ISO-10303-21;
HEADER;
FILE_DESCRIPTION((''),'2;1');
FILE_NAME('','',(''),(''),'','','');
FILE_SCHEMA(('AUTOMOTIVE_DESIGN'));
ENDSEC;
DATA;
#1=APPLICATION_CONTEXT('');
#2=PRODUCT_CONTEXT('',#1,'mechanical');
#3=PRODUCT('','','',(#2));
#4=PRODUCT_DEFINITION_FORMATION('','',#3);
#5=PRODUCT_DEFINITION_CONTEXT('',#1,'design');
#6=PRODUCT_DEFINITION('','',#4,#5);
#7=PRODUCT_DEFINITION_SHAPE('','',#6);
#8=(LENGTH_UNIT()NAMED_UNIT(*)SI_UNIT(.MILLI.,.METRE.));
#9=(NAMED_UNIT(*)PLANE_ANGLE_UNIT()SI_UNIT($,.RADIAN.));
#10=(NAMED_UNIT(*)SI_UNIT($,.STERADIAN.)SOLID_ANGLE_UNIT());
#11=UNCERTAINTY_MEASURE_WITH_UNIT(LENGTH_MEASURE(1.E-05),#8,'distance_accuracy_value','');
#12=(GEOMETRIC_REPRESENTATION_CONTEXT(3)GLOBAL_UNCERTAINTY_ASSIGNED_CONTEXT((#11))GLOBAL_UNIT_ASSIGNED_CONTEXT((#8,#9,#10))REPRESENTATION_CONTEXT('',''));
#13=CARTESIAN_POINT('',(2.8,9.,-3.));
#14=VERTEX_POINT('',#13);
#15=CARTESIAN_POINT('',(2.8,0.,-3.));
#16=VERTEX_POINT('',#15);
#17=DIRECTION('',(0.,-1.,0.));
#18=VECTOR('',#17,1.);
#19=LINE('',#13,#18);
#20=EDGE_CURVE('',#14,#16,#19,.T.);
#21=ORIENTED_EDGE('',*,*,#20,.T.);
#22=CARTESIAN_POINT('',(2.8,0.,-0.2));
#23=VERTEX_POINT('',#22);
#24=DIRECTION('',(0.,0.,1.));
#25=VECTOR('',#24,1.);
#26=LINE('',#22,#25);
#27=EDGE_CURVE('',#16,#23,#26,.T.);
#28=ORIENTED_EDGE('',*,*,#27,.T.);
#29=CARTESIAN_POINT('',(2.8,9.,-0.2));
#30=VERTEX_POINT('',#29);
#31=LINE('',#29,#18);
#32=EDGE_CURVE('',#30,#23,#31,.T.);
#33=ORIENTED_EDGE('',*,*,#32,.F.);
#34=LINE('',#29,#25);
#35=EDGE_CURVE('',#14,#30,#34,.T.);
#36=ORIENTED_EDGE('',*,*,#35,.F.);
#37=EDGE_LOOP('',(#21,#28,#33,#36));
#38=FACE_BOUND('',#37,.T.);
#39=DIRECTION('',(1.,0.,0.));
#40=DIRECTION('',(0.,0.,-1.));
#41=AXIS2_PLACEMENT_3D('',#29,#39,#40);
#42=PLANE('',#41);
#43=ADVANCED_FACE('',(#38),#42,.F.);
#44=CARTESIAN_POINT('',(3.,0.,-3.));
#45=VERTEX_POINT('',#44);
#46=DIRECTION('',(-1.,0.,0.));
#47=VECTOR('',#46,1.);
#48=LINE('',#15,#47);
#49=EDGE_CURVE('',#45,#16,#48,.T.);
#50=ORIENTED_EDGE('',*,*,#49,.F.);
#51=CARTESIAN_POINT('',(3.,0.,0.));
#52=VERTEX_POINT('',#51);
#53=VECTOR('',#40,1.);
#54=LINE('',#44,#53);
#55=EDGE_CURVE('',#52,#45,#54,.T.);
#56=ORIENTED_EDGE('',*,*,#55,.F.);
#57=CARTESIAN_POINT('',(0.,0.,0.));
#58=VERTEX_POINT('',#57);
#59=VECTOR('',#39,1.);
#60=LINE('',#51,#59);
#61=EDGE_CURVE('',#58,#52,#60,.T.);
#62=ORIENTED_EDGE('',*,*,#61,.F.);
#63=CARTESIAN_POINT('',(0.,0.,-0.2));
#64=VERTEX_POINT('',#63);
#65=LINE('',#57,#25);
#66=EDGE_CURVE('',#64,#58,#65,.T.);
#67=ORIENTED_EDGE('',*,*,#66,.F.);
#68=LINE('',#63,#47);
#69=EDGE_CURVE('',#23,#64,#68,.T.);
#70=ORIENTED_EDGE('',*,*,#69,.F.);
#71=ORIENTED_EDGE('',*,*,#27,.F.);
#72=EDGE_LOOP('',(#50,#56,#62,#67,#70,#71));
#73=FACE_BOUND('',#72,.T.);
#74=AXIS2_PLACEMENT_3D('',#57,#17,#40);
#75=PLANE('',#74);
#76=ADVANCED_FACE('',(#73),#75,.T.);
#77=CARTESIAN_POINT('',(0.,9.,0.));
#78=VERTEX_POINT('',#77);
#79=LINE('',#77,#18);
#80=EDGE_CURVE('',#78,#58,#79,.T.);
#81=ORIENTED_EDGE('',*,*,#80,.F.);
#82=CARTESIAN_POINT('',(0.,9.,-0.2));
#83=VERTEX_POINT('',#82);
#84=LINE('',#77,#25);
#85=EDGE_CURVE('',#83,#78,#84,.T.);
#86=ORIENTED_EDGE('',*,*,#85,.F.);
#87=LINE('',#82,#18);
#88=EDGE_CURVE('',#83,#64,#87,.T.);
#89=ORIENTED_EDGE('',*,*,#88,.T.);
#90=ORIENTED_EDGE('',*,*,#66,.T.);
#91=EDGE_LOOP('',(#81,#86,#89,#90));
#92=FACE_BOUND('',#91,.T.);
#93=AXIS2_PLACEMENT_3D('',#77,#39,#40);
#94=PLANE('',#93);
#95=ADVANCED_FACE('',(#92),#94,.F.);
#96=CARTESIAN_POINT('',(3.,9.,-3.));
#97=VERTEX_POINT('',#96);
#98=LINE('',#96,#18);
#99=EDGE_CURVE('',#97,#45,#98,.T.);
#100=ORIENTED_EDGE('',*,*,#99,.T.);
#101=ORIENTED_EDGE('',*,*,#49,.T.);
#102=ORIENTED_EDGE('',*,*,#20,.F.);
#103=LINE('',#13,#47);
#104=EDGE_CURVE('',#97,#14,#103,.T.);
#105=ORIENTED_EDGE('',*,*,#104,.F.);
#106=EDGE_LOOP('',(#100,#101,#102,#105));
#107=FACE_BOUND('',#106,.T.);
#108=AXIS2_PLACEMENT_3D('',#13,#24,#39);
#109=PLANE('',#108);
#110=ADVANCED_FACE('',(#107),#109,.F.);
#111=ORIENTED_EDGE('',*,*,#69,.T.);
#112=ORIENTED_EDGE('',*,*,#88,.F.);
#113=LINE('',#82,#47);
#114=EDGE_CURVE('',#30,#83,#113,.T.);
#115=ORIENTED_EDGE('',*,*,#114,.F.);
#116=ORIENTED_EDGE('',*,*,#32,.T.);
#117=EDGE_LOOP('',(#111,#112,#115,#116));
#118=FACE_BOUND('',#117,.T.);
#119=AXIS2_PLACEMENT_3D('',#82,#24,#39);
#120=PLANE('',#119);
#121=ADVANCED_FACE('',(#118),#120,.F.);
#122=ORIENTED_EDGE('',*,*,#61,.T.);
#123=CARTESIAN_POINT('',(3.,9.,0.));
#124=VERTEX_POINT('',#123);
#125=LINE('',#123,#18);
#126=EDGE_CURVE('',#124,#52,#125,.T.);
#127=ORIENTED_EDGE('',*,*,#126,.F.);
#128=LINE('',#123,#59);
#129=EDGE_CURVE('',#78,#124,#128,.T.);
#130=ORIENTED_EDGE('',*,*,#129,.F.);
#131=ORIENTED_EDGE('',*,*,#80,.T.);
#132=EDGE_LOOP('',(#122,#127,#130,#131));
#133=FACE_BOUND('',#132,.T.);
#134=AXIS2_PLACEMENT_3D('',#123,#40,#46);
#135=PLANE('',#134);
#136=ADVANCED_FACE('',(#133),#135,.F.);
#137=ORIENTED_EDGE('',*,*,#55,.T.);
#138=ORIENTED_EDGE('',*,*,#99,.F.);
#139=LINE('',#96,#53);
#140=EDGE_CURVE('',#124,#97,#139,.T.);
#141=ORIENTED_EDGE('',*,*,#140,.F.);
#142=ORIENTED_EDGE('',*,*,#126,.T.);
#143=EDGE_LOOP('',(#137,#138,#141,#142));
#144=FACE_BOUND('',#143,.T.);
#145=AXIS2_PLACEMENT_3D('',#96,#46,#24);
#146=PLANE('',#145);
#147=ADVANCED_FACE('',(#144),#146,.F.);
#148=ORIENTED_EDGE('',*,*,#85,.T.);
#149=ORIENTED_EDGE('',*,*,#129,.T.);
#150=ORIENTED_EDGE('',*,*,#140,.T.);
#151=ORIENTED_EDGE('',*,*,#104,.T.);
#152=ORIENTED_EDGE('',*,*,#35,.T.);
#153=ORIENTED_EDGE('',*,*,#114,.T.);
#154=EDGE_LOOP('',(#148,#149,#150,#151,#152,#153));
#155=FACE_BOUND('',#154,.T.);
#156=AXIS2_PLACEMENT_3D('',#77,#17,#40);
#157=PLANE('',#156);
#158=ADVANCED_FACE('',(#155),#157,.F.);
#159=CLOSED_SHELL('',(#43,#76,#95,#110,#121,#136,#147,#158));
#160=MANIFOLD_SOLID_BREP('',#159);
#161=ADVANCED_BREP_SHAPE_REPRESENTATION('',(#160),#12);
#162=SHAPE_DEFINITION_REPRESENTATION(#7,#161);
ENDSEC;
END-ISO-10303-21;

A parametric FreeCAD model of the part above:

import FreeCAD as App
import Part
import Sketcher
from FreeCAD import Vector

doc = App.newDocument("Part")
params = doc.addObject("Spreadsheet::Sheet", "Params")
for row, (alias, value) in enumerate([
    ("sketch1_width", "3 mm"),
    ("sketch1_width2", "0.2 mm"),
    ("pad1_length", "9 mm"),
], start=1):
    params.set(f"A{row}", alias)
    params.set(f"B{row}", "=" + value)
    params.setAlias(f"B{row}", alias)

body = doc.addObject("PartDesign::Body", "Body")

# Sketch on XZ plane
sketch1 = body.newObject("Sketcher::SketchObject", "Sketch")
sketch1.AttachmentSupport = (doc.getObject("XZ_Plane"), [""])
sketch1.MapMode = "FlatFace"
sketch1.addGeometry(Part.LineSegment(Vector(0, -0.2, 0), Vector(0, 0, 0)), False)
sketch1.addGeometry(Part.LineSegment(Vector(0, 0, 0), Vector(3, 0, 0)), False)
sketch1.addGeometry(Part.LineSegment(Vector(3, 0, 0), Vector(3, -3, 0)), False)
sketch1.addGeometry(Part.LineSegment(Vector(3, -3, 0), Vector(2.8, -3, 0)), False)
sketch1.addGeometry(Part.LineSegment(Vector(2.8, -3, 0), Vector(2.8, -0.2, 0)), False)
sketch1.addGeometry(Part.LineSegment(Vector(2.8, -0.2, 0), Vector(0, -0.2, 0)), False)
sketch1.addConstraint(Sketcher.Constraint("Coincident", 0, 2, 1, 1))
sketch1.addConstraint(Sketcher.Constraint("Coincident", 1, 2, 2, 1))
sketch1.addConstraint(Sketcher.Constraint("Coincident", 2, 2, 3, 1))
sketch1.addConstraint(Sketcher.Constraint("Coincident", 3, 2, 4, 1))
sketch1.addConstraint(Sketcher.Constraint("Coincident", 4, 2, 5, 1))
sketch1.addConstraint(Sketcher.Constraint("Coincident", 5, 2, 0, 1))
sketch1.addConstraint(Sketcher.Constraint("Vertical", 0))
sketch1.addConstraint(Sketcher.Constraint("Horizontal", 1))
sketch1.addConstraint(Sketcher.Constraint("Vertical", 2))
sketch1.addConstraint(Sketcher.Constraint("Horizontal", 3))
sketch1.addConstraint(Sketcher.Constraint("Vertical", 4))
sketch1.addConstraint(Sketcher.Constraint("Horizontal", 5))
sketch1.addConstraint(Sketcher.Constraint("Coincident", 0, 2, -1, 1))
sketch1.addConstraint(Sketcher.Constraint("Equal", 3, 0))
sketch1.addConstraint(Sketcher.Constraint("Equal", 1, 2))
sketch1.addConstraint(Sketcher.Constraint("DistanceX", 1, 1, 1, 2, 3.0))
sketch1.addConstraint(Sketcher.Constraint("DistanceX", 3, 2, 3, 1, 0.2))
sketch1.setExpression("Constraints[15]", "Params.sketch1_width")
sketch1.setExpression("Constraints[16]", "Params.sketch1_width2")
pad1 = body.newObject("PartDesign::Pad", "Pad")
pad1.Profile = sketch1
pad1.setExpression("Length", "Params.pad1_length")
pad1.Reversed = True

doc.recompute()
